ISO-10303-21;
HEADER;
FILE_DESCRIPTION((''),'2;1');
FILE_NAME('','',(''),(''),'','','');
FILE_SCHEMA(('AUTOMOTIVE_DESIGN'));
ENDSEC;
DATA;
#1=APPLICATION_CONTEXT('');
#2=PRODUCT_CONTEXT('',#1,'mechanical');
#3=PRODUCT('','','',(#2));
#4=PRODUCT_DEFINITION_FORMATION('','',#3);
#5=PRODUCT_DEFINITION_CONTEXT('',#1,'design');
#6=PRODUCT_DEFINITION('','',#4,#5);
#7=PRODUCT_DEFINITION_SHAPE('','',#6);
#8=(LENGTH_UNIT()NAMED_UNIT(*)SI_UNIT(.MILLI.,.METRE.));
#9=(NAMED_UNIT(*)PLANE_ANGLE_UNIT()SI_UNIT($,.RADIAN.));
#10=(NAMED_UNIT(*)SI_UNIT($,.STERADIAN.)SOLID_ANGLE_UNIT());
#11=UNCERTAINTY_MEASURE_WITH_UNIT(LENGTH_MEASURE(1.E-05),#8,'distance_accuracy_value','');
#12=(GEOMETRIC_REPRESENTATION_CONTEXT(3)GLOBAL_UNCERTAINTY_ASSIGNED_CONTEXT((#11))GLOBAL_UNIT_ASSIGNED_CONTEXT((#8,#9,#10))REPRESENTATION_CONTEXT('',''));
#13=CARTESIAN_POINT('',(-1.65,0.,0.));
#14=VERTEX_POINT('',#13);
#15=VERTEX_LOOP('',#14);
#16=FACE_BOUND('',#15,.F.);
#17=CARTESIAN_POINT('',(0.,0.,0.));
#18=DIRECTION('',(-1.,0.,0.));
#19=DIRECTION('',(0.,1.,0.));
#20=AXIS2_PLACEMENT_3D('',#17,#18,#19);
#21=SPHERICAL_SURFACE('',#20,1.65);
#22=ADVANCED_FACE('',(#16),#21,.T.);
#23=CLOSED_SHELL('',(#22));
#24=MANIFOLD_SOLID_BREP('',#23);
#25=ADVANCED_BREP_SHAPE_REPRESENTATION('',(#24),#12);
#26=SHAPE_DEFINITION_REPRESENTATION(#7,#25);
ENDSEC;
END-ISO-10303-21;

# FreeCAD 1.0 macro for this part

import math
import FreeCAD as App
import Part
import Sketcher

V = App.Vector

doc = App.newDocument("Part")
body = doc.addObject("PartDesign::Body", "Body")

# Sketch on XY plane
sketch1 = doc.addObject("Sketcher::SketchObject", "Sketch")
body.addObject(sketch1)
sketch1.AttachmentSupport = (doc.XY_Plane, [""])
sketch1.MapMode = "FlatFace"
sketch1.addGeometry(Part.LineSegment(V(-1.6, 0, 0), V(1.6, 0, 0)), False)
sketch1.addGeometry(Part.ArcOfCircle(Part.Circle(V(0, 0, 0), V(0, 0, 1), 1.6), math.radians(0), math.radians(180)), False)
sketch1.addConstraint(Sketcher.Constraint("Coincident", 0, 1, 1, 2))
sketch1.addConstraint(Sketcher.Constraint("Coincident", 1, 1, 0, 2))
sketch1.addConstraint(Sketcher.Constraint("Horizontal", 0))
sketch1.addConstraint(Sketcher.Constraint("Coincident", 1, 3, -1, 1))
sketch1.addConstraint(Sketcher.Constraint("PointOnObject", 0, 1, -1))
sketch1.addConstraint(Sketcher.Constraint("Radius", 1, 1.65))
revolution = doc.addObject("PartDesign::Revolution", "Revolution")
body.addObject(revolution)
revolution.Profile = sketch1
revolution.ReferenceAxis = (sketch1, ["H_Axis"])
revolution.Angle = 360

doc.recompute()
